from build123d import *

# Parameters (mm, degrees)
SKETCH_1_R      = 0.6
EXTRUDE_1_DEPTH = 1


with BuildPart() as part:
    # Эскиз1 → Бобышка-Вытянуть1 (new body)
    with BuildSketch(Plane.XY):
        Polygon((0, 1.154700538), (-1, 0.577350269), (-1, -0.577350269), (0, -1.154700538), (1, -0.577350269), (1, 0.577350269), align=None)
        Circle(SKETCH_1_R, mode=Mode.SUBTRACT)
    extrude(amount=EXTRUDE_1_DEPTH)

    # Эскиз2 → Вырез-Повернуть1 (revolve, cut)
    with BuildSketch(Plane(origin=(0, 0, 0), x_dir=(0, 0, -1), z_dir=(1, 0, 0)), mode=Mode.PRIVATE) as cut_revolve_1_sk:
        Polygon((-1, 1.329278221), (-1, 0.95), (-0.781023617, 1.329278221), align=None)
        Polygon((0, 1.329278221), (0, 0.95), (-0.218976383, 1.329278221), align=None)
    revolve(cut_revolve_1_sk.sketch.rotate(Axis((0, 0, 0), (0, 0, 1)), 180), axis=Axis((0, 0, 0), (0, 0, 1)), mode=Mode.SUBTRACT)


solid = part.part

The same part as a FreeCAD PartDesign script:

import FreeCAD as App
import Part
import Sketcher
Q = App.Units.Quantity

doc = App.newDocument("Part")
body = doc.addObject("PartDesign::Body", "Body")

# Sketch on XY plane
sketch1 = body.newObject("Sketcher::SketchObject", "Sketch")
sketch1.AttachmentSupport = (doc.getObject("XY_Plane"), [""])
sketch1.MapMode = "FlatFace"
sketch1.addGeometry([
    Part.LineSegment(App.Vector(0, 1.154701, 0), App.Vector(-1, 0.57735, 0)),  # 0
    Part.LineSegment(App.Vector(-1, 0.57735, 0), App.Vector(-1, -0.57735, 0)),  # 1
    Part.LineSegment(App.Vector(-1, -0.57735, 0), App.Vector(0, -1.154701, 0)),  # 2
    Part.LineSegment(App.Vector(0, -1.154701, 0), App.Vector(1, -0.57735, 0)),  # 3
    Part.LineSegment(App.Vector(1, -0.57735, 0), App.Vector(1, 0.57735, 0)),  # 4
    Part.LineSegment(App.Vector(1, 0.57735, 0), App.Vector(0, 1.154701, 0)),  # 5
    Part.Circle(App.Vector(0, 0, 0), App.Vector(0, 0, 1), 0.6),  # 6
], False)
sketch1.addConstraint([
    Sketcher.Constraint("Coincident", 0, 2, 1, 1),
    Sketcher.Constraint("Coincident", 1, 2, 2, 1),
    Sketcher.Constraint("Coincident", 2, 2, 3, 1),
    Sketcher.Constraint("Coincident", 3, 2, 4, 1),
    Sketcher.Constraint("Coincident", 4, 2, 5, 1),
    Sketcher.Constraint("Coincident", 5, 2, 0, 1),
    Sketcher.Constraint("Vertical", 1),
    Sketcher.Constraint("Vertical", 4),
    Sketcher.Constraint("Coincident", 6, 3, -1, 1),
    Sketcher.Constraint("Symmetric", 0, 2, 3, 2, -1, 1),
    Sketcher.Constraint("Symmetric", 2, 2, 5, 2, -1, 1),
    Sketcher.Constraint("PointOnObject", 2, 2, -2),
    Sketcher.Constraint("Parallel", 2, 5),
    Sketcher.Constraint("Horizontal", 1, 2, 3, 2),
    Sketcher.Constraint("Diameter", 6, Q("1.2 mm")),
    Sketcher.Constraint("Angle", 0, Q("-150 deg")),
    Sketcher.Constraint("DistanceX", 0, 2, -1, 1, Q("1 mm")),
    Sketcher.Constraint("DistanceY", 1, 2, 1, 1, Q("1.154701 mm")),
])
pad1 = body.newObject("PartDesign::Pad", "Pad")
pad1.Profile = sketch1
pad1.Length = 1

# Sketch on YZ plane
sketch2 = body.newObject("Sketcher::SketchObject", "Sketch001")
sketch2.AttachmentSupport = (doc.getObject("YZ_Plane"), [""])
sketch2.MapMode = "FlatFace"
sketch2.addGeometry([
    Part.LineSegment(App.Vector(1.329278, 1, 0), App.Vector(0.95, 1, 0)),  # 0
    Part.LineSegment(App.Vector(0.95, 1, 0), App.Vector(1.329278, 0.781024, 0)),  # 1
    Part.LineSegment(App.Vector(1.329278, 0.781024, 0), App.Vector(1.329278, 1, 0)),  # 2
    Part.LineSegment(App.Vector(0.95, 0, 0), App.Vector(1.329278, 0, 0)),  # 3
    Part.LineSegment(App.Vector(1.329278, 0, 0), App.Vector(1.329278, 0.218976, 0)),  # 4
    Part.LineSegment(App.Vector(1.329278, 0.218976, 0), App.Vector(0.95, 0, 0)),  # 5
], False)
sketch2.addConstraint([
    Sketcher.Constraint("Coincident", 0, 2, 1, 1),
    Sketcher.Constraint("Coincident", 1, 2, 2, 1),
    Sketcher.Constraint("Coincident", 2, 2, 0, 1),
    Sketcher.Constraint("Coincident", 3, 2, 4, 1),
    Sketcher.Constraint("Coincident", 4, 2, 5, 1),
    Sketcher.Constraint("Coincident", 5, 2, 3, 1),
    Sketcher.Constraint("Horizontal", 0),
    Sketcher.Constraint("Vertical", 2),
    Sketcher.Constraint("Horizontal", 3),
    Sketcher.Constraint("Vertical", 4),
    Sketcher.Constraint("PointOnObject", 3, 2, -1),
    Sketcher.Constraint("Vertical", 2, 2, 3, 2),
    Sketcher.Constraint("Vertical", 0, 2, 5, 2),
    Sketcher.Constraint("Equal", 2, 4),
    Sketcher.Constraint("Angle", 1, Q("-30 deg")),
    Sketcher.Constraint("DistanceY", -1, 1, 0, 2, Q("1 mm")),
    Sketcher.Constraint("DistanceX", -1, 1, 0, 2, Q("0.95 mm")),
    Sketcher.Constraint("DistanceX", 0, 2, 0, 1, Q("0.379278 mm")),
])
groove = body.newObject("PartDesign::Groove", "Groove")
groove.Profile = sketch2
groove.ReferenceAxis = (sketch2, ["V_Axis"])
groove.Angle = 360

doc.recompute()
